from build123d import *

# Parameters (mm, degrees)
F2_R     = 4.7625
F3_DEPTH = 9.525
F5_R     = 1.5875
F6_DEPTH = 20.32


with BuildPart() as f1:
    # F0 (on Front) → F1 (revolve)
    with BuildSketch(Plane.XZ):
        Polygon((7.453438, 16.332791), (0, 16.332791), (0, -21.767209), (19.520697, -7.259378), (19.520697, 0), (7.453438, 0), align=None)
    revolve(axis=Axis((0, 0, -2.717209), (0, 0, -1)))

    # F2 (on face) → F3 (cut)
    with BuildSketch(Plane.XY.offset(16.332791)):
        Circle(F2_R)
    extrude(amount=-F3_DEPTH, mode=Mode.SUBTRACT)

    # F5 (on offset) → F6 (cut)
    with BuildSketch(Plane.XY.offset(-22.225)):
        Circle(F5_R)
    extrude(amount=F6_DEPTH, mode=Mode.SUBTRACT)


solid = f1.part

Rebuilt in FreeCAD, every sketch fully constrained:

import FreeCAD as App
import Part
import Sketcher
from FreeCAD import Vector
Q = App.Units.Quantity

doc = App.newDocument("Part")
body = doc.addObject("PartDesign::Body", "Body")

# Sketch on XZ plane
sketch1 = body.newObject("Sketcher::SketchObject", "Sketch")
sketch1.AttachmentSupport = (doc.getObject("XZ_Plane"), [""])
sketch1.MapMode = "FlatFace"
sketch1.addGeometry([
    Part.LineSegment(Vector(7, 16, 0), Vector(0, 16, 0)),  # 0
    Part.LineSegment(Vector(0, 16, 0), Vector(0, -22, 0)),  # 1
    Part.LineSegment(Vector(0, -22, 0), Vector(20, -7, 0)),  # 2
    Part.LineSegment(Vector(20, -7, 0), Vector(20, 0, 0)),  # 3
    Part.LineSegment(Vector(20, 0, 0), Vector(7, 0, 0)),  # 4
    Part.LineSegment(Vector(7, 0, 0), Vector(7, 16, 0)),  # 5
], False)
sketch1.addConstraint([
    Sketcher.Constraint("Coincident", 0, 2, 1, 1),
    Sketcher.Constraint("Coincident", 1, 2, 2, 1),
    Sketcher.Constraint("Coincident", 2, 2, 3, 1),
    Sketcher.Constraint("Coincident", 3, 2, 4, 1),
    Sketcher.Constraint("Coincident", 4, 2, 5, 1),
    Sketcher.Constraint("Coincident", 5, 2, 0, 1),
    Sketcher.Constraint("Horizontal", 0),
    Sketcher.Constraint("Vertical", 1),
    Sketcher.Constraint("Vertical", 3),
    Sketcher.Constraint("Horizontal", 4),
    Sketcher.Constraint("Vertical", 5),
    Sketcher.Constraint("PointOnObject", 0, 2, -2),
    Sketcher.Constraint("PointOnObject", 3, 2, -1),
    Sketcher.Constraint("DistanceY", 1, 2, 1, 1, Q("1.5 in")),
    Sketcher.Constraint("DistanceX", 0, 2, 0, 1, Q("7.453438 mm")),
    Sketcher.Constraint("DistanceX", 4, 2, 4, 1, Q("12.067259 mm")),
    Sketcher.Constraint("DistanceY", 5, 1, 5, 2, Q("16.332791 mm")),
    Sketcher.Constraint("DistanceY", 3, 1, 3, 2, Q("7.259378 mm")),
])
revolution = body.newObject("PartDesign::Revolution", "Revolution")
revolution.Profile = sketch1
revolution.ReferenceAxis = (sketch1, ["V_Axis"])
revolution.Angle = 360

# Sketch on XY plane
sketch2 = body.newObject("Sketcher::SketchObject", "Sketch001")
sketch2.AttachmentSupport = (doc.getObject("XY_Plane"), [""])
sketch2.MapMode = "FlatFace"
sketch2.AttachmentOffset = App.Placement(Vector(0, 0, 16.332791), App.Rotation())
sketch2.addGeometry(Part.Circle(Vector(0, 0, 0), Vector(0, 0, 1), 4.8), False)
sketch2.addConstraint([
    Sketcher.Constraint("Coincident", 0, 3, -1, 1),
    Sketcher.Constraint("Diameter", 0, Q("0.375 in")),
])
pocket1 = body.newObject("PartDesign::Pocket", "Pocket")
pocket1.Profile = sketch2
pocket1.Length = Q("0.375 in")

# Sketch on XY plane
sketch3 = body.newObject("Sketcher::SketchObject", "Sketch002")
sketch3.AttachmentSupport = (doc.getObject("XY_Plane"), [""])
sketch3.MapMode = "FlatFace"
sketch3.AttachmentOffset = App.Placement(Vector(0, 0, -0.875 * 25.4), App.Rotation())
sketch3.addGeometry(Part.Circle(Vector(0, 0, 0), Vector(0, 0, 1), 1.6), False)
sketch3.addConstraint([
    Sketcher.Constraint("Coincident", 0, 3, -1, 1),
    Sketcher.Constraint("Diameter", 0, Q("0.125 in")),
])
pocket2 = body.newObject("PartDesign::Pocket", "Pocket001")
pocket2.Profile = sketch3
pocket2.Length = Q("0.8 in")
pocket2.Reversed = True

doc.recompute()
